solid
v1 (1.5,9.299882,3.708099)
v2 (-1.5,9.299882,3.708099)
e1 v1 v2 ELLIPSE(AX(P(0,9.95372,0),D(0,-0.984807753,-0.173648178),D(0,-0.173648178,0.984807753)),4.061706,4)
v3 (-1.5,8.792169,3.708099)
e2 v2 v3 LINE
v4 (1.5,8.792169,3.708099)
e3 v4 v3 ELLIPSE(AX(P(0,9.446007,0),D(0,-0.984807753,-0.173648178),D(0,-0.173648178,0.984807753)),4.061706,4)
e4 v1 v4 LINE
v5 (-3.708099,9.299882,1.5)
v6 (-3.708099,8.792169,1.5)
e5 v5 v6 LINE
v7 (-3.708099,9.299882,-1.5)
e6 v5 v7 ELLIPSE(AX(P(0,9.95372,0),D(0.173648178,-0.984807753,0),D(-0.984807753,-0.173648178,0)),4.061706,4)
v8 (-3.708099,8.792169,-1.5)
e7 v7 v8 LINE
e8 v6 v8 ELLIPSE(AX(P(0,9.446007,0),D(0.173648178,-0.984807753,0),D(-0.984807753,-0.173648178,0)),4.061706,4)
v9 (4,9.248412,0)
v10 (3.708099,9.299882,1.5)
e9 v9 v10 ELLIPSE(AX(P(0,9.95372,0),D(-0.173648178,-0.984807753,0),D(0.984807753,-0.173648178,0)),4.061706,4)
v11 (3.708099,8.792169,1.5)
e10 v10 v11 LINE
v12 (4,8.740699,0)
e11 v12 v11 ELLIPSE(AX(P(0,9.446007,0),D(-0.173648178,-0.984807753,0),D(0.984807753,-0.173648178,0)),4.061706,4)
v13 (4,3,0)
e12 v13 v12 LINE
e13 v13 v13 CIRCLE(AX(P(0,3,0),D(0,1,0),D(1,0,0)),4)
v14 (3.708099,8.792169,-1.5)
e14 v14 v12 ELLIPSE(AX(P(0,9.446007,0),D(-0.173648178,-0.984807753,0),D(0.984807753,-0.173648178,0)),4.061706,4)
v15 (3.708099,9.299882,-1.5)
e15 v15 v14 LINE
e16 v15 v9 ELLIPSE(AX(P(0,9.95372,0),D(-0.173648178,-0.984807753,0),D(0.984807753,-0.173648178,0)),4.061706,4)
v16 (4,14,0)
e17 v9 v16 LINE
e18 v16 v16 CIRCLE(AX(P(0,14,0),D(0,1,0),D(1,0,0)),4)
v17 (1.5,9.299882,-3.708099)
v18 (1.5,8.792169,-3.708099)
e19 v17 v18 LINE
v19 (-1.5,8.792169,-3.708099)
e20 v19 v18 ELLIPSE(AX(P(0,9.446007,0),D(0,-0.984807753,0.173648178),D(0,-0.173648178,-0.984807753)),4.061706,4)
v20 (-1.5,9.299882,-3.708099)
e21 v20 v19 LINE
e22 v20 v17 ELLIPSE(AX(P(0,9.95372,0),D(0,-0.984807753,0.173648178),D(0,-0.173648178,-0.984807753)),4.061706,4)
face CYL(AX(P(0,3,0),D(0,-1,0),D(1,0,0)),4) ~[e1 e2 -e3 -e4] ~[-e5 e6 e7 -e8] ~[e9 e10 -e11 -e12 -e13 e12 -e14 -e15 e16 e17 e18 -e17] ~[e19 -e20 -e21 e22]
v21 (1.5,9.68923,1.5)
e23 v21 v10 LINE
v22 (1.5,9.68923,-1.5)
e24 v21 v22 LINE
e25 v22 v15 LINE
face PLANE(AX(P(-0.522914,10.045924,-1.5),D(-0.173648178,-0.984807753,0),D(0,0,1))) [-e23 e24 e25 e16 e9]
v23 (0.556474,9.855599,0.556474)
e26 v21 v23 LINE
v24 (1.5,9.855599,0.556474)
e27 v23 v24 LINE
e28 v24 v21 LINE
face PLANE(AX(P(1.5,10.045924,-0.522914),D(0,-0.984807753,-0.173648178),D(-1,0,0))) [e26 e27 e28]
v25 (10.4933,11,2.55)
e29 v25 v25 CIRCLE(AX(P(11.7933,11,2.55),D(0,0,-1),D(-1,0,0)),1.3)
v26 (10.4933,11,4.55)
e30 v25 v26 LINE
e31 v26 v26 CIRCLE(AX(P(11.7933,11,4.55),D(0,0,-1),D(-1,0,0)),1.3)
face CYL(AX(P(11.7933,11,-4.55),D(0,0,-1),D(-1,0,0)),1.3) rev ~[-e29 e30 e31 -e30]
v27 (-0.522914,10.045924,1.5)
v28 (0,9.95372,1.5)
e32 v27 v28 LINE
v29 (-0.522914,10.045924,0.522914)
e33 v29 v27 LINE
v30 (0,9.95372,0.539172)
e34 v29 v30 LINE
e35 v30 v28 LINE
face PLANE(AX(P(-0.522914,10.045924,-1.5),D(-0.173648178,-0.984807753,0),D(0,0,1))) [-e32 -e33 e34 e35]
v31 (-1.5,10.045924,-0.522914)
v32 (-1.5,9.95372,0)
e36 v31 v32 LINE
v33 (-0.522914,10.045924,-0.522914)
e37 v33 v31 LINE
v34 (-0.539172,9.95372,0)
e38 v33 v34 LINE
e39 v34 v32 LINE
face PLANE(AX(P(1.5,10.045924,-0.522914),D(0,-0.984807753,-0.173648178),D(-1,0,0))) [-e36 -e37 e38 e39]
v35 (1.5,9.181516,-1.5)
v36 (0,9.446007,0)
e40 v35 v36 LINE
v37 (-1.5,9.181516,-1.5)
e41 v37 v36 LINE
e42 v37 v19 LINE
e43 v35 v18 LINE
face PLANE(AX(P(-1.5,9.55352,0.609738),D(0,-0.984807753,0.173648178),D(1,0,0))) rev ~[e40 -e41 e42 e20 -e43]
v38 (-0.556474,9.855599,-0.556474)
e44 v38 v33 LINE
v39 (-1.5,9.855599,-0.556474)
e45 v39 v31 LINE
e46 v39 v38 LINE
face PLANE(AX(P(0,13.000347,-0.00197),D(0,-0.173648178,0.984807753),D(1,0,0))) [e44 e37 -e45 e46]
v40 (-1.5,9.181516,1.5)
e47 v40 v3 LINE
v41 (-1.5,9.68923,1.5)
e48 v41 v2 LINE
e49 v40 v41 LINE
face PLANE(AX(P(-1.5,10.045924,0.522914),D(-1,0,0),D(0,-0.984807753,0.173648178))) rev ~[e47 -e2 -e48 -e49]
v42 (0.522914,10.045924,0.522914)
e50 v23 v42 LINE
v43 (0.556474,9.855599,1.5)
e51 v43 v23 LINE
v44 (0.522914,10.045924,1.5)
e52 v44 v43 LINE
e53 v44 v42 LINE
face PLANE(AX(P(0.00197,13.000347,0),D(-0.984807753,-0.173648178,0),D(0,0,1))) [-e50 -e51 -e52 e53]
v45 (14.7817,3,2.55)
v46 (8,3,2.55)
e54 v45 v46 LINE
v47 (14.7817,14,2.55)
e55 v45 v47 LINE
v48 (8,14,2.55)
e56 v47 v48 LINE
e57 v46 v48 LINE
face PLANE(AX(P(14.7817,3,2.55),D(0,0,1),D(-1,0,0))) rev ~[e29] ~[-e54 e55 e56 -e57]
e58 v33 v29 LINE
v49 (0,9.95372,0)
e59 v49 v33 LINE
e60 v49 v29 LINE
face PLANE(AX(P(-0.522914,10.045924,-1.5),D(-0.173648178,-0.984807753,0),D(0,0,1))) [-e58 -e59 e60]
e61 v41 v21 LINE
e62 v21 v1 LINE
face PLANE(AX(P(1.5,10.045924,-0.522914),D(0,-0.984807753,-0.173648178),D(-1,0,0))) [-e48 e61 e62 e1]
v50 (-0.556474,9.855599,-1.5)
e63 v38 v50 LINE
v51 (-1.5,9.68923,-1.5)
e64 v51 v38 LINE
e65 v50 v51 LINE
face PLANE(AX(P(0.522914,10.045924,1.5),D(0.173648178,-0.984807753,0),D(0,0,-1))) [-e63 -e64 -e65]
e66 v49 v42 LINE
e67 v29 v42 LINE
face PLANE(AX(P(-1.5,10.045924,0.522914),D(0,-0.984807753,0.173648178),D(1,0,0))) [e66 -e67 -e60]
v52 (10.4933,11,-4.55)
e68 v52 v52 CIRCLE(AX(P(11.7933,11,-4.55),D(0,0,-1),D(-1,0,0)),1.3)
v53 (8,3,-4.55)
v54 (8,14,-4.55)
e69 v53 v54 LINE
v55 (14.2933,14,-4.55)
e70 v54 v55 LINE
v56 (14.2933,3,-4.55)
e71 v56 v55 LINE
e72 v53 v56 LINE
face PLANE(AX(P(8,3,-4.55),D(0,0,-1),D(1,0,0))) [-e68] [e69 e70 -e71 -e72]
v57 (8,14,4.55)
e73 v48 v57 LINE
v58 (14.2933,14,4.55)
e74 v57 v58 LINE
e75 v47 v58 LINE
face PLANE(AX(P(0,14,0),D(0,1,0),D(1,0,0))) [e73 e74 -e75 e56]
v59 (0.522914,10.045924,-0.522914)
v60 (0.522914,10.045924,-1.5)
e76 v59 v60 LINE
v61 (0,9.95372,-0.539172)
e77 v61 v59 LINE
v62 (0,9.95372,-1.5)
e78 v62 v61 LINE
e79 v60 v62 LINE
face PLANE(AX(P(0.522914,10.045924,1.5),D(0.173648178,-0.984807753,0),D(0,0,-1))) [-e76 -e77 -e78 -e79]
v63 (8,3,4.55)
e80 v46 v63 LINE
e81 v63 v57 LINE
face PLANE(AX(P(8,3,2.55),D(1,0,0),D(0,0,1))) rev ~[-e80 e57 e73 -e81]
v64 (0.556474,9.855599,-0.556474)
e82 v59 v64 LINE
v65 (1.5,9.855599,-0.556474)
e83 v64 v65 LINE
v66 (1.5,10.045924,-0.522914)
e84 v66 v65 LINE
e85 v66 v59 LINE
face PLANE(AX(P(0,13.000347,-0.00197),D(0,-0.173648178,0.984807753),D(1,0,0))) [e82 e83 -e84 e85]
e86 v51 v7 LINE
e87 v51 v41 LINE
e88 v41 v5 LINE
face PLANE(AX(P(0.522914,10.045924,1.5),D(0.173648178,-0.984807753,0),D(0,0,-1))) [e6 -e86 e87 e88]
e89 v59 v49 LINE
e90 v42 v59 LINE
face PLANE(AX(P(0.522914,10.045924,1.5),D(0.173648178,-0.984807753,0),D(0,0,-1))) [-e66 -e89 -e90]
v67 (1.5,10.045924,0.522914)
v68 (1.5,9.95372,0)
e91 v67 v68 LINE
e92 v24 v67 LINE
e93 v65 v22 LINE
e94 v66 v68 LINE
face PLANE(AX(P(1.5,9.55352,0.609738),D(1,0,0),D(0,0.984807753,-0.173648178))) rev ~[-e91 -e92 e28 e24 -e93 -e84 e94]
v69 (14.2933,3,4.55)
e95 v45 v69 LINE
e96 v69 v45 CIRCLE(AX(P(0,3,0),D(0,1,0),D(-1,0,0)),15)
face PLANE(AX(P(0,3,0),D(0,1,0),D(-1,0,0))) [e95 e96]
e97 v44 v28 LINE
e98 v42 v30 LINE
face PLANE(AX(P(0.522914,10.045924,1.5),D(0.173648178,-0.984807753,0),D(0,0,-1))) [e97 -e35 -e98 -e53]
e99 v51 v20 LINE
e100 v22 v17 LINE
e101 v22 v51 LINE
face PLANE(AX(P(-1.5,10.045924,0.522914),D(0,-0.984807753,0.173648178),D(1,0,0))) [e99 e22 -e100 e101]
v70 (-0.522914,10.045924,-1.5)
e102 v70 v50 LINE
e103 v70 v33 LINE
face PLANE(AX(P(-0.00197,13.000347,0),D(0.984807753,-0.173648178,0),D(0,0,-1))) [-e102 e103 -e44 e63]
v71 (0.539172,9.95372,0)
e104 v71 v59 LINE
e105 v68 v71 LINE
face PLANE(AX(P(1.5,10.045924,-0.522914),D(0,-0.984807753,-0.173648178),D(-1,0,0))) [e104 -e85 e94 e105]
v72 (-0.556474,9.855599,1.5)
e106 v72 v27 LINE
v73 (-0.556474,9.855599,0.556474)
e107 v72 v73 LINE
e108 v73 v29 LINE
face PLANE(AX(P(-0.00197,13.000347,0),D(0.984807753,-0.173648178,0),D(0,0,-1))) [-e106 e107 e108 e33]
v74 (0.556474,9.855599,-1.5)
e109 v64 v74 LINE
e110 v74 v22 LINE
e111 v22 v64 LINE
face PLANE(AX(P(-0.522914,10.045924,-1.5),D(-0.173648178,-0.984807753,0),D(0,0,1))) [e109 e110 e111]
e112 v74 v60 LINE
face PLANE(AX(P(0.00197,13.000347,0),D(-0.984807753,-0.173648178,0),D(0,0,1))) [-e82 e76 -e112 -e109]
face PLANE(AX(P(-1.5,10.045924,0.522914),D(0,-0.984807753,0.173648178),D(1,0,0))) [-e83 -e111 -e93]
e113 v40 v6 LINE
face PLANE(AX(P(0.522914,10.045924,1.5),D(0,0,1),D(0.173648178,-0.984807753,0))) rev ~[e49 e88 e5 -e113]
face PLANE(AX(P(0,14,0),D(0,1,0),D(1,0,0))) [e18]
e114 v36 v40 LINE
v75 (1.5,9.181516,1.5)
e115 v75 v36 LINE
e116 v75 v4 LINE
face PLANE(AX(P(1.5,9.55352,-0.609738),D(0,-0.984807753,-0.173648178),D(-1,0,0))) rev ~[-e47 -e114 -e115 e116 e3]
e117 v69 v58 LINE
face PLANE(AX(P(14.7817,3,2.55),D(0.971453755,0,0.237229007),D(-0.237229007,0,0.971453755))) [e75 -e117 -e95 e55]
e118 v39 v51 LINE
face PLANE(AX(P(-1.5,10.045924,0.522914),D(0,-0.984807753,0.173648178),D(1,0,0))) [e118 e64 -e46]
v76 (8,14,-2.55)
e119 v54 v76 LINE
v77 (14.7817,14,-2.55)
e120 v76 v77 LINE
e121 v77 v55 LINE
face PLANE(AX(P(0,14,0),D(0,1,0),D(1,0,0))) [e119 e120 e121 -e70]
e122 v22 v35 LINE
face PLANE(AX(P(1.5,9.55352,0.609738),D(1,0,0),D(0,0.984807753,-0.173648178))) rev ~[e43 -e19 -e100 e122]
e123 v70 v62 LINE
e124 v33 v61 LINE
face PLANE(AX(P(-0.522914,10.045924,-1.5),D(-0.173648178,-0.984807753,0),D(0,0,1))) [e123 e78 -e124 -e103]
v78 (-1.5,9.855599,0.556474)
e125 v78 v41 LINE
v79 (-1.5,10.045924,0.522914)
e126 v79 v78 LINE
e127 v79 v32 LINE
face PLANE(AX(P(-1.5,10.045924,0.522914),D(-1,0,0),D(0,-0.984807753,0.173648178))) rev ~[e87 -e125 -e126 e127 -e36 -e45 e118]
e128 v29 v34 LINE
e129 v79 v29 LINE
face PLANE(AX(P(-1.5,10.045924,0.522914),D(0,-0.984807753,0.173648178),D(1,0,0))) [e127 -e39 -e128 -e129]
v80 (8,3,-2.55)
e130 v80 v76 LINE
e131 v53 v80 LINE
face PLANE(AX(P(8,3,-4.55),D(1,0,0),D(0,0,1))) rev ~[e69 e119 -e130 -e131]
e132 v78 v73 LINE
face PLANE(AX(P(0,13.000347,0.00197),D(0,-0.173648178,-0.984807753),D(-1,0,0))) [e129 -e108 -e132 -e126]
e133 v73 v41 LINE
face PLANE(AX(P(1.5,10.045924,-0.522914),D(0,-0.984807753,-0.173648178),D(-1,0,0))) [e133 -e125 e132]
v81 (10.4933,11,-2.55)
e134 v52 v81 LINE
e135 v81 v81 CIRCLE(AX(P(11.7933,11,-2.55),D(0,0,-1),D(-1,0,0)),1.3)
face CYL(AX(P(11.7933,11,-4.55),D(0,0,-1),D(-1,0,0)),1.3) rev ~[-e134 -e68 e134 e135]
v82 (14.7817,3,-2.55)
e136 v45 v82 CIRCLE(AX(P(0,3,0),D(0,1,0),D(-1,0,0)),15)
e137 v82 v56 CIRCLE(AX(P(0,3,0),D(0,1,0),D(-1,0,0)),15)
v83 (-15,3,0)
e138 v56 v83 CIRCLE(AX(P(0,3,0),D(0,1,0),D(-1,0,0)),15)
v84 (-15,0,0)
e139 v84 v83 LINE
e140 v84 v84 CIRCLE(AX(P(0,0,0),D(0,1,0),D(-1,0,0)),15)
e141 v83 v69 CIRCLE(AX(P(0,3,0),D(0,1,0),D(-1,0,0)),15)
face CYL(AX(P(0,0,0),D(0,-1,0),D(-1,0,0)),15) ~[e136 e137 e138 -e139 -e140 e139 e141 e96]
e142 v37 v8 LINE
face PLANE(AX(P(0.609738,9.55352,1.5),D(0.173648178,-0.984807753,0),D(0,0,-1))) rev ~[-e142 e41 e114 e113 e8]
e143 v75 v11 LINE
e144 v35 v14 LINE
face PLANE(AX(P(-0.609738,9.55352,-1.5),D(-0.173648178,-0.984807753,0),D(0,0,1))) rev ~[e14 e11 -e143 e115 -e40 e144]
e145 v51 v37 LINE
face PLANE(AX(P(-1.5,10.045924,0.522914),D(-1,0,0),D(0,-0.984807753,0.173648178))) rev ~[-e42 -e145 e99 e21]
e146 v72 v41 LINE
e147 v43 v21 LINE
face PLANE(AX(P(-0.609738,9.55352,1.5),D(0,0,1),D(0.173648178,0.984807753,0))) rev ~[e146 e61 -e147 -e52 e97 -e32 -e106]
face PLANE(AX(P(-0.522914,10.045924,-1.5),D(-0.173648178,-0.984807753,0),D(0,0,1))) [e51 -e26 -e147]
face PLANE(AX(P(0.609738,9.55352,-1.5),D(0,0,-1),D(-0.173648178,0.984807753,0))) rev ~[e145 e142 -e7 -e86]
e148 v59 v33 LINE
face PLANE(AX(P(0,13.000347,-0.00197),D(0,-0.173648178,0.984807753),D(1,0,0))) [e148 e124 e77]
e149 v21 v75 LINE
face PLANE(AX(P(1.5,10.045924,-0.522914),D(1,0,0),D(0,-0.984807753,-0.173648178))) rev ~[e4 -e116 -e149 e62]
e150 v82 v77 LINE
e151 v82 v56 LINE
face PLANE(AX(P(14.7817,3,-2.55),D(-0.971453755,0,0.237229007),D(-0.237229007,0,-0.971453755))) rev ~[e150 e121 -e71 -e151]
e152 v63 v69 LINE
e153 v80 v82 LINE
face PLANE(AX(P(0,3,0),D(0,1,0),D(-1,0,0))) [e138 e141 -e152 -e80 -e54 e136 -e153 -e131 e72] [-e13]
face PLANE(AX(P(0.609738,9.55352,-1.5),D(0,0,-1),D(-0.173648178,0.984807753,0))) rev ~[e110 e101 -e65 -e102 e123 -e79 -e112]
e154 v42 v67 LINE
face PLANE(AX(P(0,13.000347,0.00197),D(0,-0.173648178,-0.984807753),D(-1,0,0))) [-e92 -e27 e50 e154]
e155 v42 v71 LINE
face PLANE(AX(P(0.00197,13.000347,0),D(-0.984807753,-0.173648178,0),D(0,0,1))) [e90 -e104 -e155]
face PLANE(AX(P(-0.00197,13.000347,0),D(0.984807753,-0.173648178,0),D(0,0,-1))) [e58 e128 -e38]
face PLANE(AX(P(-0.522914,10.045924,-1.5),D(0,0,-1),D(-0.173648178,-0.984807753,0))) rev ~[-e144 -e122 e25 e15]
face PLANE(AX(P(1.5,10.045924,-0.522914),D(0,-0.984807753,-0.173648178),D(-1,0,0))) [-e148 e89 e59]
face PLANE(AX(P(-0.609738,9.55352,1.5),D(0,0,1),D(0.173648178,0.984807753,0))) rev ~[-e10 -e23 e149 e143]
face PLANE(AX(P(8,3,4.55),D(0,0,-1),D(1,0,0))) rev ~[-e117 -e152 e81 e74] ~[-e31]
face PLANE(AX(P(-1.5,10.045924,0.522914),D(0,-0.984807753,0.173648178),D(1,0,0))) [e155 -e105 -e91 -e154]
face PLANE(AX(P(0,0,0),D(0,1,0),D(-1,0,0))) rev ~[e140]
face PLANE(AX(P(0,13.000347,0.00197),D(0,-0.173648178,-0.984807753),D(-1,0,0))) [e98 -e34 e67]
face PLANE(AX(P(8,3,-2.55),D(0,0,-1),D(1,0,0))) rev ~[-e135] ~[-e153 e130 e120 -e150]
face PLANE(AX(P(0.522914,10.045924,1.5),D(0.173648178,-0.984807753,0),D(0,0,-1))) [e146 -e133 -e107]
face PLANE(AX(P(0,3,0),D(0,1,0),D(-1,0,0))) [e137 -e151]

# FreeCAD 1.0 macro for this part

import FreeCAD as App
import Part
import Sketcher
from FreeCAD import Vector
Q = App.Units.Quantity


def add_polygon(sketch, points):
    """Adds a closed chain of lines whose ends are joined by coincident constraints."""
    first, n = sketch.GeometryCount, len(points)
    for a, b in zip(points, points[1:] + points[:1]):
        sketch.addGeometry(Part.LineSegment(App.Vector(*a, 0), App.Vector(*b, 0)), False)
    for i in range(n):
        sketch.addConstraint(Sketcher.Constraint("Coincident", first + i, 2, first + (i + 1) % n, 1))

doc = App.newDocument("Part")
body = doc.addObject("PartDesign::Body", "Body")

sketch1 = body.newObject("Sketcher::SketchObject", "Sketch")
sketch1.AttachmentSupport = (doc.getObject("XZ_Plane"), [""])
sketch1.MapMode = "FlatFace"
sketch1.addGeometry(Part.Circle(Vector(0, 0, 0), Vector(0, 0, 1), 15), False)
sketch1.addConstraint([
    Sketcher.Constraint("Coincident", 0, 3, -1, 1),
    Sketcher.Constraint("Diameter", 0, Q("30 mm")),
])
pad1 = body.newObject("PartDesign::Pad", "Pad")
pad1.Profile = sketch1
pad1.Length = 3
pad1.Reversed = True

sketch2 = body.newObject("Sketcher::SketchObject", "Sketch001")
sketch2.AttachmentSupport = (doc.getObject("XZ_Plane"), [""])
sketch2.MapMode = "FlatFace"
sketch2.AttachmentOffset = App.Placement(Vector(0, 0, -3), App.Rotation())
add_polygon(sketch2, [(8, -2.5), (14.8, -2.5), (14.3, -4.5), (8, -4.5)])
add_polygon(sketch2, [(14.3, 4.5), (14.8, 2.5), (8, 2.5), (8, 4.5)])
sketch2.addConstraint([
    Sketcher.Constraint("Horizontal", 0),
    Sketcher.Constraint("Horizontal", 2),
    Sketcher.Constraint("Vertical", 3),
    Sketcher.Constraint("Horizontal", 5),
    Sketcher.Constraint("Vertical", 6),
    Sketcher.Constraint("Horizontal", 7),
    Sketcher.Constraint("Symmetric", 0, 2, 4, 2, -1),
    Sketcher.Constraint("Symmetric", 2, 2, 6, 2, -1),
    Sketcher.Constraint("Vertical", 1, 2, 7, 2),
    Sketcher.Constraint("DistanceY", 3, 1, 3, 2, Q("2 mm")),
    Sketcher.Constraint("DistanceX", -1, 1, 2, 2, Q("8 mm")),
    Sketcher.Constraint("DistanceY", 0, 2, -1, 1, Q("2.55 mm")),
    Sketcher.Constraint("DistanceX", 0, 1, 0, 2, Q("6.7817 mm")),
    Sketcher.Constraint("DistanceX", 2, 2, 2, 1, Q("6.2933 mm")),
])
pad2 = body.newObject("PartDesign::Pad", "Pad001")
pad2.Profile = sketch2
pad2.Length = 11
pad2.Reversed = True

sketch3 = body.newObject("Sketcher::SketchObject", "Sketch002")
sketch3.AttachmentSupport = (doc.getObject("XY_Plane"), [""])
sketch3.MapMode = "FlatFace"
sketch3.AttachmentOffset = App.Placement(Vector(0, 0, -4.55), App.Rotation())
sketch3.addGeometry(Part.Circle(Vector(11.8, 11, 0), Vector(0, 0, 1), 1.3), False)
sketch3.addConstraint([
    Sketcher.Constraint("Diameter", 0, Q("2.6 mm")),
    Sketcher.Constraint("DistanceY", -1, 1, 0, 3, Q("11 mm")),
    Sketcher.Constraint("DistanceX", -1, 1, 0, 3, Q("11.7933 mm")),
])
pocket1 = body.newObject("PartDesign::Pocket", "Pocket")
pocket1.Profile = sketch3
pocket1.Type = "ThroughAll"
pocket1.Reversed = True

sketch4 = body.newObject("Sketcher::SketchObject", "Sketch003")
sketch4.AttachmentSupport = (doc.getObject("XZ_Plane"), [""])
sketch4.MapMode = "FlatFace"
sketch4.AttachmentOffset = App.Placement(Vector(0, 0, -3), App.Rotation())
sketch4.addGeometry(Part.Circle(Vector(0, 0, 0), Vector(0, 0, 1), 4), False)
sketch4.addConstraint([
    Sketcher.Constraint("Coincident", 0, 3, -1, 1),
    Sketcher.Constraint("Diameter", 0, Q("8 mm")),
])
pad3 = body.newObject("PartDesign::Pad", "Pad002")
pad3.Profile = sketch4
pad3.Length = 11
pad3.Reversed = True

sketch5 = body.newObject("Sketcher::SketchObject", "Sketch004")
sketch5.Placement = App.Placement(Vector(0, 13, 0), App.Rotation(Vector(1, 0, 0), Vector(0, 0.984807753, 0.173648178), Vector(0, -0.173648178, 0.984807753), "ZXY"))
add_polygon(sketch5, [(1.5, -3.5), (1.5, -3), (-1.5, -3), (-1.5, -3.5)])
sketch5.addConstraint([
    Sketcher.Constraint("Vertical", 0),
    Sketcher.Constraint("Horizontal", 1),
    Sketcher.Constraint("Vertical", 2),
    Sketcher.Constraint("Horizontal", 3),
    Sketcher.Constraint("DistanceX", 1, 2, 1, 1, Q("3 mm")),
    Sketcher.Constraint("DistanceY", 0, 1, 0, 2, Q("0.5 mm")),
    Sketcher.Constraint("DistanceY", 0, 2, -1, 1, Q("3 mm")),
    Sketcher.Constraint("DistanceX", -1, 1, 0, 2, Q("1.5 mm")),
])
pocket2 = body.newObject("PartDesign::Pocket", "Pocket001")
pocket2.Profile = sketch5
pocket2.Length = 10
pocket2.Reversed = True
doc.recompute()

polarpattern = body.newObject("PartDesign::PolarPattern", "PolarPattern")
polarpattern.Originals = [pocket2]
polarpattern.Axis = (doc.getObject("Y_Axis"), [""])
polarpattern.Angle = 360
polarpattern.Occurrences = 4
body.Tip = polarpattern

doc.recompute()
